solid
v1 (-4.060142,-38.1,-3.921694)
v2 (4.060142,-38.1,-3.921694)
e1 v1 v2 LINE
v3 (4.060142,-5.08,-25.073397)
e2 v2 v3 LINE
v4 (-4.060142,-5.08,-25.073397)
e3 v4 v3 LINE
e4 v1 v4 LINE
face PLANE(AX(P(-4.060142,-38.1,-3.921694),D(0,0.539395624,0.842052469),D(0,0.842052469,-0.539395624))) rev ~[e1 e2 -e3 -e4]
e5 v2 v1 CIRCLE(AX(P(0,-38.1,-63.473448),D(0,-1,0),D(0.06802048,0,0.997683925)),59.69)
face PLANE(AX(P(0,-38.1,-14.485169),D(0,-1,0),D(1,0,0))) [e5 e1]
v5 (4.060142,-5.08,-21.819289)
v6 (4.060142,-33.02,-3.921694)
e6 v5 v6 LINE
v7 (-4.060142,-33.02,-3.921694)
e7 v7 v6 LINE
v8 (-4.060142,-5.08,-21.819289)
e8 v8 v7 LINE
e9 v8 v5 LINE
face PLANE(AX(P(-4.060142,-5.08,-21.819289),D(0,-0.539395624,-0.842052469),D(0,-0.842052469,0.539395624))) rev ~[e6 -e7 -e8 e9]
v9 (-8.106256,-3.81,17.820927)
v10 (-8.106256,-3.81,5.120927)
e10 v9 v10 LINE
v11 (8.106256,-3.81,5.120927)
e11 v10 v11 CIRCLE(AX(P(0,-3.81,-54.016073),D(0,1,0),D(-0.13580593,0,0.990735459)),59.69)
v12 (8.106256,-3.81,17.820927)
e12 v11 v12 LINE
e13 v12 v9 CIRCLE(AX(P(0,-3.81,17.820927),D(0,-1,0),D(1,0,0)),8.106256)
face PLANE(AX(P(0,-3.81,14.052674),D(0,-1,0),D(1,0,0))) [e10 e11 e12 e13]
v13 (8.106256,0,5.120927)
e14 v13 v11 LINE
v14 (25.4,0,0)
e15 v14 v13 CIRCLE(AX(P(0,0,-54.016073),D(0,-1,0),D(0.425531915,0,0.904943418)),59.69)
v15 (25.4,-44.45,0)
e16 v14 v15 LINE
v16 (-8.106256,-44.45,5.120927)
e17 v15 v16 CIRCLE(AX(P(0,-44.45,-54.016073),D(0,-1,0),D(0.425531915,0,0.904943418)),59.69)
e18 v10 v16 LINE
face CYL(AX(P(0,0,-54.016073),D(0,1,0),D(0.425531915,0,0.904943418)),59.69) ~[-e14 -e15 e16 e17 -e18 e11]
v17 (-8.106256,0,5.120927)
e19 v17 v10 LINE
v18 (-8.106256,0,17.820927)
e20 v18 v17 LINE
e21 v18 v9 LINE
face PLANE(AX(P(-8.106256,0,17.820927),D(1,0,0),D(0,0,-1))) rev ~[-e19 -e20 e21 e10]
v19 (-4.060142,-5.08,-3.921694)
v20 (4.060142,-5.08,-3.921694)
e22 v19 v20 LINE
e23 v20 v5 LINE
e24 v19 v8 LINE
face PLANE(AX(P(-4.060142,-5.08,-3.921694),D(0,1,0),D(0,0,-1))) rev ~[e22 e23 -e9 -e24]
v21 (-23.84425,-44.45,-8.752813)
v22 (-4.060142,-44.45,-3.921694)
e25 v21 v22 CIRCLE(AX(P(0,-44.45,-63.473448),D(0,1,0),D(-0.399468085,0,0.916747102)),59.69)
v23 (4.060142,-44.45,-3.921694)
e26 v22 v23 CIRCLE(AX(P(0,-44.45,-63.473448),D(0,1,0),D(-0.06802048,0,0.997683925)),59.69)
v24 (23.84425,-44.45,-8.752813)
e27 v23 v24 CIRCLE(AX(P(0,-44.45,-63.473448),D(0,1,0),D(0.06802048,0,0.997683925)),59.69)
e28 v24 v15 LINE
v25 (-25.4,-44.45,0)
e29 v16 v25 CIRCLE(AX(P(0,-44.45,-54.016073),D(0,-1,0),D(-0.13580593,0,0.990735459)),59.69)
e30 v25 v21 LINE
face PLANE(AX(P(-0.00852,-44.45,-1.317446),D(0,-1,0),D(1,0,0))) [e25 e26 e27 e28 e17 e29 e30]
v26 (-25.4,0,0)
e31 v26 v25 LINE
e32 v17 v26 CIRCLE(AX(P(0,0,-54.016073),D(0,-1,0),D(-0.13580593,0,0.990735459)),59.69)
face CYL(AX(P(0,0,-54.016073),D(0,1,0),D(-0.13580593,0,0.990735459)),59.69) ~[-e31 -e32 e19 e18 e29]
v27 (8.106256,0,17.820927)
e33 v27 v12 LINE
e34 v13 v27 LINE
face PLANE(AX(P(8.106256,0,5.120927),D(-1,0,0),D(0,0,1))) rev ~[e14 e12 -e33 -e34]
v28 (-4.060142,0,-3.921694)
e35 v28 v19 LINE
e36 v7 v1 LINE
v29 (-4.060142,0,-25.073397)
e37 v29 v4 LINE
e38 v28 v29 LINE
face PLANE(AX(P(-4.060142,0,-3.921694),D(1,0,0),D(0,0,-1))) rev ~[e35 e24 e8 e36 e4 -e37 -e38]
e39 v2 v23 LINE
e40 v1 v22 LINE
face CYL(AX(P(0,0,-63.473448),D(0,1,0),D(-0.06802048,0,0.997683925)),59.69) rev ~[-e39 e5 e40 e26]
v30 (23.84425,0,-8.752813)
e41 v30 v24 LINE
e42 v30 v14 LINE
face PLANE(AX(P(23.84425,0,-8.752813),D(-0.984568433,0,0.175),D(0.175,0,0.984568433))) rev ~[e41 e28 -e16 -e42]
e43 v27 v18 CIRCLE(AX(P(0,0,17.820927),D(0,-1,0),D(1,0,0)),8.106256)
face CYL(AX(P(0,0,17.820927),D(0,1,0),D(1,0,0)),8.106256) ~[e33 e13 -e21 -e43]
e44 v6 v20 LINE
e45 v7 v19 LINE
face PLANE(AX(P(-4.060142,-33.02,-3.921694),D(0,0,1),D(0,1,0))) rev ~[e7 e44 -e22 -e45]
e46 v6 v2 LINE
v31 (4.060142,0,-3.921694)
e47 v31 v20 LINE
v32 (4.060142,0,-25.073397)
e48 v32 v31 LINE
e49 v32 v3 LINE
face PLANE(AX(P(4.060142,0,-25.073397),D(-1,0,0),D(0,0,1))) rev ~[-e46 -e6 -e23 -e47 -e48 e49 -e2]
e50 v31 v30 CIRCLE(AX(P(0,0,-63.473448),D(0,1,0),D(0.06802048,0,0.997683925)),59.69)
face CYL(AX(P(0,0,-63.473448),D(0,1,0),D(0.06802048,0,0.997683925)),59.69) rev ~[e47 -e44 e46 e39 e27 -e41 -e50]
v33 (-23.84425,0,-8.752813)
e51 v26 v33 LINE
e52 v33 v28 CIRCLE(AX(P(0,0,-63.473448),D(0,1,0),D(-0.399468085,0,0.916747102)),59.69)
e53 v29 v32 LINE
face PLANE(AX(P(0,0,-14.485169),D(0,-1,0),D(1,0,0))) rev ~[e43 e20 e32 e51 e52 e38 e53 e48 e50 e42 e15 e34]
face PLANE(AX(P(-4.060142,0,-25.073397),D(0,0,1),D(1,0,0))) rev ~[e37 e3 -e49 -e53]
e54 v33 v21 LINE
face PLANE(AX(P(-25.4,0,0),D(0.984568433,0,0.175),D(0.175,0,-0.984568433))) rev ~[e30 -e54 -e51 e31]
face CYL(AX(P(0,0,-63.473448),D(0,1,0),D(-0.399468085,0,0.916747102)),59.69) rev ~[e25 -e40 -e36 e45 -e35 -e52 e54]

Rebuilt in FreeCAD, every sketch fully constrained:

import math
import FreeCAD as App
import Part
import Sketcher

V = App.Vector
Q = App.Units.Quantity

doc = App.newDocument("Part")
params = doc.addObject("Spreadsheet::Sheet", "Params")
for row, (alias, value) in enumerate([
    ("sketch1_radius", "2.35 in"),
    ("sketch1_length", "0.35 in"),
    ("pad1_length", "1.75 in"),
    ("sketch2_radius", "2.35 in"),
    ("sketch2_height", "0.5 in"),
    ("pad2_length", "0.15 in"),
    ("sketch3_radius", "2.35 in"),
    ("pad3_length", "1.5 in"),
    ("sketch4_width", "1.1 in"),
    ("sketch4_width2", "1.3 in"),
    ("pocket1_length", "8.120285 mm"),
], start=1):
    params.set(f"A{row}", alias)
    params.set(f"B{row}", "=" + value)
    params.setAlias(f"B{row}", alias)

body = doc.addObject("PartDesign::Body", "Body")

# Sketch on XZ plane
sketch1 = body.newObject("Sketcher::SketchObject", "Sketch")
sketch1.AttachmentSupport = (doc.getObject("XZ_Plane"), [""])
sketch1.MapMode = "FlatFace"
sketch1.addGeometry([
    Part.LineSegment(V(24, -9, 0), V(25, 0, 0)),  # 0
    Part.ArcOfCircle(Part.Circle(V(0, -54, 0), V(0, 0, 1), 60), math.radians(65), math.radians(98)),  # 1
    Part.ArcOfCircle(Part.Circle(V(0, -54, 0), V(0, 0, 1), 60), math.radians(97.81), math.radians(115.18)),  # 2
    Part.LineSegment(V(-25, 0, 0), V(-24, -9, 0)),  # 3
    Part.ArcOfCircle(Part.Circle(V(0, -63, 0), V(0, 0, 1), 60), math.radians(93.9), math.radians(113.54)),  # 4
    Part.ArcOfCircle(Part.Circle(V(0, -63, 0), V(0, 0, 1), 60), math.radians(86.1), math.radians(93.9)),  # 5
    Part.ArcOfCircle(Part.Circle(V(0, -63, 0), V(0, 0, 1), 60), math.radians(66.46), math.radians(86.1)),  # 6
], False)
sketch1.addConstraint([
    Sketcher.Constraint("Coincident", 0, 2, 1, 1),
    Sketcher.Constraint("Tangent", 1, 2, 2, 1),
    Sketcher.Constraint("Coincident", 2, 2, 3, 1),
    Sketcher.Constraint("Coincident", 3, 2, 4, 2),
    Sketcher.Constraint("Tangent", 4, 1, 5, 2),
    Sketcher.Constraint("Tangent", 5, 1, 6, 2),
    Sketcher.Constraint("Coincident", 6, 1, 0, 1),
    Sketcher.Constraint("Coincident", 6, 3, 4, 3),
    Sketcher.Constraint("Equal", 1, 2),
    Sketcher.Constraint("Equal", 2, 4),
    Sketcher.Constraint("Symmetric", 0, 2, 2, 2, -1, 1),
    Sketcher.Constraint("Symmetric", 4, 1, 5, 1, -2),
    Sketcher.Constraint("PointOnObject", 1, 3, -2),
    Sketcher.Constraint("Horizontal", 3, 2, 6, 1),
    Sketcher.Constraint("Radius", 1, Q("2.35 in")),
    Sketcher.Constraint("DistanceX", -1, 1, 0, 2, Q("1 in")),
    Sketcher.Constraint("Distance", 0, Q("0.35 in")),
    Sketcher.Constraint("DistanceX", 3, 2, 6, 1, Q("1.8775 in")),
    Sketcher.Constraint("DistanceY", 1, 3, 1, 2, Q("59.137 mm")),
    Sketcher.Constraint("DistanceX", 1, 2, 5, 1, Q("12.166398 mm")),
])
sketch1.setExpression("Constraints[14]", "Params.sketch1_radius")
sketch1.setExpression("Constraints[16]", "Params.sketch1_length")
pad1 = body.newObject("PartDesign::Pad", "Pad")
pad1.Profile = sketch1
pad1.setExpression("Length", "Params.pad1_length")

# Sketch on XZ plane
sketch2 = body.newObject("Sketcher::SketchObject", "Sketch001")
sketch2.AttachmentSupport = (doc.getObject("XZ_Plane"), [""])
sketch2.MapMode = "FlatFace"
sketch2.addGeometry([
    Part.ArcOfCircle(Part.Circle(V(0, -54, 0), V(0, 0, 1), 60), math.radians(82.19), math.radians(97.81)),
    Part.LineSegment(V(8, 5, 0), V(8, 18, 0)),
    Part.ArcOfCircle(Part.Circle(V(0, 18, 0), V(0, 0, 1), 8), math.radians(0), math.radians(180)),
    Part.LineSegment(V(-8, 18, 0), V(-8, 5, 0)),
], False)
sketch2.addConstraint([
    Sketcher.Constraint("Coincident", 0, 1, 1, 1),
    Sketcher.Constraint("Tangent", 1, 2, 2, 1),
    Sketcher.Constraint("Tangent", 2, 2, 3, 1),
    Sketcher.Constraint("Coincident", 3, 2, 0, 2),
    Sketcher.Constraint("Vertical", 1),
    Sketcher.Constraint("Vertical", 3),
    Sketcher.Constraint("Symmetric", 0, 1, 3, 2, -2),
    Sketcher.Constraint("Radius", 0, Q("2.35 in")),
    Sketcher.Constraint("DistanceY", 1, 1, 1, 2, Q("0.5 in")),
    Sketcher.Constraint("Radius", 2, Q("8.106256 mm")),
    Sketcher.Constraint("DistanceY", 0, 3, -1, 1, Q("54.016073 mm")),
])
sketch2.setExpression("Constraints[7]", "Params.sketch2_radius")
sketch2.setExpression("Constraints[8]", "Params.sketch2_height")
pad2 = body.newObject("PartDesign::Pad", "Pad001")
pad2.Profile = sketch2
pad2.setExpression("Length", "Params.pad2_length")

# Sketch on XZ plane
sketch3 = body.newObject("Sketcher::SketchObject", "Sketch002")
sketch3.AttachmentSupport = (doc.getObject("XZ_Plane"), [""])
sketch3.MapMode = "FlatFace"
sketch3.addGeometry([
    Part.LineSegment(V(4, -25, 0), V(4, -4, 0)),
    Part.ArcOfCircle(Part.Circle(V(0, -63, 0), V(0, 0, 1), 60), math.radians(86.1), math.radians(93.9)),
    Part.LineSegment(V(-4, -4, 0), V(-4, -25, 0)),
    Part.LineSegment(V(-4, -25, 0), V(4, -25, 0)),
], False)
sketch3.addConstraint([
    Sketcher.Constraint("Coincident", 0, 2, 1, 1),
    Sketcher.Constraint("Coincident", 1, 2, 2, 1),
    Sketcher.Constraint("Coincident", 2, 2, 3, 1),
    Sketcher.Constraint("Coincident", 3, 2, 0, 1),
    Sketcher.Constraint("Vertical", 0),
    Sketcher.Constraint("Vertical", 2),
    Sketcher.Constraint("Horizontal", 3),
    Sketcher.Constraint("Symmetric", 0, 2, 1, 2, -2),
    Sketcher.Constraint("Radius", 1, Q("2.35 in")),
    Sketcher.Constraint("DistanceX", 3, 1, 3, 2, Q("8.120285 mm")),
    Sketcher.Constraint("DistanceY", 0, 1, 0, 2, Q("21.151703 mm")),
    Sketcher.Constraint("DistanceY", 1, 3, -1, 1, Q("63.473448 mm")),
])
sketch3.setExpression("Constraints[8]", "Params.sketch3_radius")
pad3 = body.newObject("PartDesign::Pad", "Pad002")
pad3.Profile = sketch3
pad3.setExpression("Length", "Params.pad3_length")

# Sketch on YZ plane
sketch4 = body.newObject("Sketcher::SketchObject", "Sketch003")
sketch4.AttachmentSupport = (doc.getObject("YZ_Plane"), [""])
sketch4.MapMode = "FlatFace"
sketch4.AttachmentOffset = App.Placement(V(0, 0, -4.060142), App.Rotation())
sketch4.addGeometry([
    Part.LineSegment(V(-33, -4, 0), V(-5, -4, 0)),  # 0
    Part.LineSegment(V(-5, -4, 0), V(-5, -22, 0)),  # 1
    Part.LineSegment(V(-5, -22, 0), V(-33, -4, 0)),  # 2
    Part.LineSegment(V(-38, -4, 0), V(-5, -25, 0)),  # 3
    Part.LineSegment(V(-5, -25, 0), V(-38, -25, 0)),  # 4
    Part.LineSegment(V(-38, -25, 0), V(-38, -4, 0)),  # 5
], False)
sketch4.addConstraint([
    Sketcher.Constraint("Coincident", 0, 2, 1, 1),
    Sketcher.Constraint("Coincident", 1, 2, 2, 1),
    Sketcher.Constraint("Coincident", 2, 2, 0, 1),
    Sketcher.Constraint("Coincident", 3, 2, 4, 1),
    Sketcher.Constraint("Coincident", 4, 2, 5, 1),
    Sketcher.Constraint("Coincident", 5, 2, 3, 1),
    Sketcher.Constraint("Horizontal", 0),
    Sketcher.Constraint("Vertical", 1),
    Sketcher.Constraint("Horizontal", 4),
    Sketcher.Constraint("Vertical", 5),
    Sketcher.Constraint("Parallel", 2, 3),
    Sketcher.Constraint("Horizontal", 2, 2, 5, 2),
    Sketcher.Constraint("Vertical", 1, 2, 3, 2),
    Sketcher.Constraint("DistanceX", 0, 1, 0, 2, Q("1.1 in")),
    Sketcher.Constraint("DistanceX", 4, 2, 4, 1, Q("1.3 in")),
    Sketcher.Constraint("DistanceX", 0, 2, -1, 1, Q("0.2 in")),
    Sketcher.Constraint("Distance", 2, Q("33.18083 mm")),
    Sketcher.Constraint("DistanceY", 1, 2, -1, 1, Q("21.819289 mm")),
])
sketch4.setExpression("Constraints[13]", "Params.sketch4_width")
sketch4.setExpression("Constraints[14]", "Params.sketch4_width2")
pocket1 = body.newObject("PartDesign::Pocket", "Pocket")
pocket1.Profile = sketch4
pocket1.setExpression("Length", "Params.pocket1_length")
pocket1.Reversed = True

doc.recompute()
